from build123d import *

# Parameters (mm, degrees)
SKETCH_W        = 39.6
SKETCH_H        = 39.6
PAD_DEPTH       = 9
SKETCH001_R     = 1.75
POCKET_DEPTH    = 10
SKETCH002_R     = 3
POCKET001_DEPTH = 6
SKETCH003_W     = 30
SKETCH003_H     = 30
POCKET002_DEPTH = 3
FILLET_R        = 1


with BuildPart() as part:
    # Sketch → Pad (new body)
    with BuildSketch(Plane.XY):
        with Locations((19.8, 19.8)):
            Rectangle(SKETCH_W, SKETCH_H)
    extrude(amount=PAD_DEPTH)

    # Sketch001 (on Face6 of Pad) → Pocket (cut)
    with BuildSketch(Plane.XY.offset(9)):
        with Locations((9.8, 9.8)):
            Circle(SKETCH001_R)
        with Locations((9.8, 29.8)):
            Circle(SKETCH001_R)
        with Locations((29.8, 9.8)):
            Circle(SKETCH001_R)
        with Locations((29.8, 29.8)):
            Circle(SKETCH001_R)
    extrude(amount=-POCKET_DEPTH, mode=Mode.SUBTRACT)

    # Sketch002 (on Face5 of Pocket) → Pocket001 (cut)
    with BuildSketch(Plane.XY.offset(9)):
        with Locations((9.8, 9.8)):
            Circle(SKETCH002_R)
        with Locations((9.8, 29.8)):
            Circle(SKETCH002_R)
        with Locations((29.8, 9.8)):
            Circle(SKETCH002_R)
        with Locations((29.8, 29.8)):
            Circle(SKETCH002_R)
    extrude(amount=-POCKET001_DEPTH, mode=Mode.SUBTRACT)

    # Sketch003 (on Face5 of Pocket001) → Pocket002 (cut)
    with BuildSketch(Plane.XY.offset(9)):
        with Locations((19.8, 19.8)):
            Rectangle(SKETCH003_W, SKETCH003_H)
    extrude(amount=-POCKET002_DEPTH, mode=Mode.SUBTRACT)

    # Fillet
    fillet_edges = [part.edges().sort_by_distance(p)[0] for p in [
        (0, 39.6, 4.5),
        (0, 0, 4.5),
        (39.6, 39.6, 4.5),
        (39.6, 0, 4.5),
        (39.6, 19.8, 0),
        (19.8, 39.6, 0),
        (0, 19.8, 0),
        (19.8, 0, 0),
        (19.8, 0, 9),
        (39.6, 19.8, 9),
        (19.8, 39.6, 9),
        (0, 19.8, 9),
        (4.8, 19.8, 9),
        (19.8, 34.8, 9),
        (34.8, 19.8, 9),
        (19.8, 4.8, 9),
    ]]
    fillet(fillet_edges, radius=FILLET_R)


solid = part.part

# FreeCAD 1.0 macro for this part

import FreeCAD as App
import Part
import Sketcher

V = App.Vector


def edges_at(feature, points):
    """Names of the edges that pass closest to the given points."""
    edges = feature.Shape.Edges
    near = lambda p: min(range(len(edges)), key=lambda i: edges[i].distToShape(Part.Vertex(*p))[0])
    return sorted({f"Edge{near(p) + 1}" for p in points})

doc = App.newDocument("Part")
params = doc.addObject("Spreadsheet::Sheet", "Params")
for row, (alias, value) in enumerate([
    ("sketch1_width", "39.6 mm"),
    ("pad1_length", "9 mm"),
    ("sketch2_diameter", "3.5 mm"),
    ("pocket1_length", "10 mm"),
    ("sketch3_diameter", "6 mm"),
    ("pocket2_length", "6 mm"),
    ("sketch4_width", "30 mm"),
    ("pocket3_length", "3 mm"),
    ("fillet_radius", "1 mm"),
], start=1):
    params.set(f"A{row}", alias)
    params.set(f"B{row}", "=" + value)
    params.setAlias(f"B{row}", alias)

body = doc.addObject("PartDesign::Body", "Body")

sketch1 = doc.addObject("Sketcher::SketchObject", "Sketch")
body.addObject(sketch1)
sketch1.AttachmentSupport = (doc.XY_Plane, [""])
sketch1.MapMode = "FlatFace"
sketch1.addGeometry([
    Part.LineSegment(V(0, 40, 0), V(0, 0, 0)),
    Part.LineSegment(V(0, 0, 0), V(40, 0, 0)),
    Part.LineSegment(V(40, 0, 0), V(40, 40, 0)),
    Part.LineSegment(V(40, 40, 0), V(0, 40, 0)),
], False)
sketch1.addConstraint([
    Sketcher.Constraint("Coincident", 0, 2, 1, 1),
    Sketcher.Constraint("Coincident", 1, 2, 2, 1),
    Sketcher.Constraint("Coincident", 2, 2, 3, 1),
    Sketcher.Constraint("Coincident", 3, 2, 0, 1),
    Sketcher.Constraint("Vertical", 0),
    Sketcher.Constraint("Horizontal", 1),
    Sketcher.Constraint("Vertical", 2),
    Sketcher.Constraint("Horizontal", 3),
    Sketcher.Constraint("Coincident", 0, 2, -1, 1),
    Sketcher.Constraint("Equal", 3, 0),
    Sketcher.Constraint("DistanceX", 1, 1, 1, 2, 39.6),
])
sketch1.setExpression("Constraints[10]", "Params.sketch1_width")
pad1 = doc.addObject("PartDesign::Pad", "Pad")
body.addObject(pad1)
pad1.Profile = sketch1
pad1.setExpression("Length", "Params.pad1_length")

sketch2 = doc.addObject("Sketcher::SketchObject", "Sketch001")
body.addObject(sketch2)
sketch2.AttachmentSupport = (doc.XY_Plane, [""])
sketch2.MapMode = "FlatFace"
sketch2.AttachmentOffset = App.Placement(V(0, 0, 9), App.Rotation())
sketch2.addGeometry([
    Part.Circle(V(9.8, 9.8, 0), V(0, 0, 1), 1.8),
    Part.Circle(V(9.8, 29.8, 0), V(0, 0, 1), 1.8),
    Part.Circle(V(29.8, 9.8, 0), V(0, 0, 1), 1.8),
    Part.Circle(V(29.8, 29.8, 0), V(0, 0, 1), 1.8),
], False)
sketch2.addConstraint([
    Sketcher.Constraint("Equal", 0, 1),
    Sketcher.Constraint("Equal", 1, 2),
    Sketcher.Constraint("Equal", 2, 3),
    Sketcher.Constraint("Horizontal", 0, 3, 2, 3),
    Sketcher.Constraint("Horizontal", 1, 3, 3, 3),
    Sketcher.Constraint("Vertical", 0, 3, 1, 3),
    Sketcher.Constraint("Vertical", 2, 3, 3, 3),
    Sketcher.Constraint("Diameter", 0, 3.5),
    Sketcher.Constraint("DistanceY", 0, 3, 1, 3, 20.0),
    Sketcher.Constraint("DistanceX", 0, 3, 2, 3, 20.0),
    Sketcher.Constraint("DistanceX", -1, 1, 0, 3, 9.8),
    Sketcher.Constraint("DistanceY", -1, 1, 0, 3, 9.8),
])
sketch2.setExpression("Constraints[7]", "Params.sketch2_diameter")
pocket1 = doc.addObject("PartDesign::Pocket", "Pocket")
body.addObject(pocket1)
pocket1.Profile = sketch2
pocket1.setExpression("Length", "Params.pocket1_length")

sketch3 = doc.addObject("Sketcher::SketchObject", "Sketch002")
body.addObject(sketch3)
sketch3.AttachmentSupport = (doc.XY_Plane, [""])
sketch3.MapMode = "FlatFace"
sketch3.AttachmentOffset = App.Placement(V(0, 0, 9), App.Rotation())
sketch3.addGeometry([
    Part.Circle(V(9.8, 9.8, 0), V(0, 0, 1), 3),
    Part.Circle(V(9.8, 29.8, 0), V(0, 0, 1), 3),
    Part.Circle(V(29.8, 9.8, 0), V(0, 0, 1), 3),
    Part.Circle(V(29.8, 29.8, 0), V(0, 0, 1), 3),
], False)
sketch3.addConstraint([
    Sketcher.Constraint("Equal", 0, 1),
    Sketcher.Constraint("Equal", 1, 2),
    Sketcher.Constraint("Equal", 2, 3),
    Sketcher.Constraint("Horizontal", 0, 3, 2, 3),
    Sketcher.Constraint("Horizontal", 1, 3, 3, 3),
    Sketcher.Constraint("Vertical", 0, 3, 1, 3),
    Sketcher.Constraint("Vertical", 2, 3, 3, 3),
    Sketcher.Constraint("Diameter", 0, 6.0),
    Sketcher.Constraint("DistanceY", 0, 3, 1, 3, 20.0),
    Sketcher.Constraint("DistanceX", 0, 3, 2, 3, 20.0),
    Sketcher.Constraint("DistanceX", -1, 1, 0, 3, 9.8),
    Sketcher.Constraint("DistanceY", -1, 1, 0, 3, 9.8),
])
sketch3.setExpression("Constraints[7]", "Params.sketch3_diameter")
pocket2 = doc.addObject("PartDesign::Pocket", "Pocket001")
body.addObject(pocket2)
pocket2.Profile = sketch3
pocket2.setExpression("Length", "Params.pocket2_length")

sketch4 = doc.addObject("Sketcher::SketchObject", "Sketch003")
body.addObject(sketch4)
sketch4.AttachmentSupport = (doc.XY_Plane, [""])
sketch4.MapMode = "FlatFace"
sketch4.AttachmentOffset = App.Placement(V(0, 0, 9), App.Rotation())
sketch4.addGeometry([
    Part.LineSegment(V(5, 35, 0), V(5, 5, 0)),
    Part.LineSegment(V(5, 5, 0), V(35, 5, 0)),
    Part.LineSegment(V(35, 5, 0), V(35, 35, 0)),
    Part.LineSegment(V(35, 35, 0), V(5, 35, 0)),
], False)
sketch4.addConstraint([
    Sketcher.Constraint("Coincident", 0, 2, 1, 1),
    Sketcher.Constraint("Coincident", 1, 2, 2, 1),
    Sketcher.Constraint("Coincident", 2, 2, 3, 1),
    Sketcher.Constraint("Coincident", 3, 2, 0, 1),
    Sketcher.Constraint("Vertical", 0),
    Sketcher.Constraint("Horizontal", 1),
    Sketcher.Constraint("Vertical", 2),
    Sketcher.Constraint("Horizontal", 3),
    Sketcher.Constraint("Equal", 3, 0),
    Sketcher.Constraint("DistanceX", 1, 1, 1, 2, 30.0),
    Sketcher.Constraint("DistanceX", -1, 1, 0, 2, 4.8),
    Sketcher.Constraint("DistanceY", -1, 1, 0, 2, 4.8),
])
sketch4.setExpression("Constraints[9]", "Params.sketch4_width")
pocket3 = doc.addObject("PartDesign::Pocket", "Pocket002")
body.addObject(pocket3)
pocket3.Profile = sketch4
pocket3.setExpression("Length", "Params.pocket3_length")
doc.recompute()

fillet = doc.addObject("PartDesign::Fillet", "Fillet")
body.addObject(fillet)
fillet.Base = (pocket3, edges_at(pocket3, [
    (0, 39.6, 4.5),
    (0, 0, 4.5),
    (39.6, 39.6, 4.5),
    (39.6, 0, 4.5),
    (39.6, 19.8, 0),
    (19.8, 39.6, 0),
    (0, 19.8, 0),
    (19.8, 0, 0),
    (19.8, 0, 9),
    (39.6, 19.8, 9),
    (19.8, 39.6, 9),
    (0, 19.8, 9),
    (4.8, 19.8, 9),
    (19.8, 34.8, 9),
    (34.8, 19.8, 9),
    (19.8, 4.8, 9),
]))
fillet.setExpression("Radius", "Params.fillet_radius")

doc.recompute()
